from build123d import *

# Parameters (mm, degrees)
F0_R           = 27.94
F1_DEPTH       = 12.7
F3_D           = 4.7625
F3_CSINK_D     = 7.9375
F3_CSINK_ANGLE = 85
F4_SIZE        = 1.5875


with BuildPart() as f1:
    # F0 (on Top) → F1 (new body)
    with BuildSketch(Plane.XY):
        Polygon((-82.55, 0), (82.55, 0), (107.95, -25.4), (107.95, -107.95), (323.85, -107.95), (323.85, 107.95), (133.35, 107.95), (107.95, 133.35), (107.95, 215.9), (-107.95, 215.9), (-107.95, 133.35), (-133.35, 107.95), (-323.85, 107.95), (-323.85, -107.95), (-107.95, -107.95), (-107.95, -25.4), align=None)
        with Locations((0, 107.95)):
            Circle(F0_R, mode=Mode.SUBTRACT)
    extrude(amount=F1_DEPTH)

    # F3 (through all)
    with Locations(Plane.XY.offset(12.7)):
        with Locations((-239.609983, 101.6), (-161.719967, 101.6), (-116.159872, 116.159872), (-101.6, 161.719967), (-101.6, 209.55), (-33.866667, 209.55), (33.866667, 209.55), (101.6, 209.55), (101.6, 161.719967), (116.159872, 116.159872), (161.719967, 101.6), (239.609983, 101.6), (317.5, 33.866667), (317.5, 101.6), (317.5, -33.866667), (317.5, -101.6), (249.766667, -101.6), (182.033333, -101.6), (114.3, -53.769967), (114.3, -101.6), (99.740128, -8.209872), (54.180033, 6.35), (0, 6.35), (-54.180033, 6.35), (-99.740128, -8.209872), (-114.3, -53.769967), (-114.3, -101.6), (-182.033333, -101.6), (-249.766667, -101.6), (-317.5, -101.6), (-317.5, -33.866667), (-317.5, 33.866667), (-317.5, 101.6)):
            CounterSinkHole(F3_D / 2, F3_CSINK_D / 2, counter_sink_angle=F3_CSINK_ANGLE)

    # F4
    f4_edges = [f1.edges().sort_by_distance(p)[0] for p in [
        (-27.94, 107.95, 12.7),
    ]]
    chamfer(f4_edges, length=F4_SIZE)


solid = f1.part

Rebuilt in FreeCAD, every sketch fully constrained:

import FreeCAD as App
import Part
import Sketcher
Q = App.Units.Quantity


def edges_at(feature, points):
    """Names of the edges that pass closest to the given points."""
    edges = feature.Shape.Edges
    near = lambda p: min(range(len(edges)), key=lambda i: edges[i].distToShape(Part.Vertex(*p))[0])
    return sorted({f"Edge{near(p) + 1}" for p in points})

doc = App.newDocument("Part")
params = doc.addObject("Spreadsheet::Sheet", "Params")
for row, (alias, value) in enumerate([
    ("sketch1_diameter", "2.2 in"),
    ("sketch1_width", "6.5 in"),
    ("sketch1_width2", "8.5 in"),
    ("pad1_length", "0.5 in"),
    ("sketch2_diameter", "0.1875 in"),
    ("hole_diameter", "0.1875 in"),
    ("hole_csink_diameter", "0.3125 in"),
    ("chamfer_size", "0.0625 in"),
], start=1):
    params.set(f"A{row}", alias)
    params.set(f"B{row}", "=" + value)
    params.setAlias(f"B{row}", alias)

body = doc.addObject("PartDesign::Body", "Body")

# Sketch on XY plane
sketch1 = body.newObject("Sketcher::SketchObject", "Sketch")
sketch1.AttachmentSupport = (doc.getObject("XY_Plane"), [""])
sketch1.MapMode = "FlatFace"
sketch1.addGeometry([
    Part.LineSegment(App.Vector(-83, 0, 0), App.Vector(83, 0, 0)),  # 0
    Part.LineSegment(App.Vector(83, 0, 0), App.Vector(108, -25, 0)),  # 1
    Part.LineSegment(App.Vector(108, -25, 0), App.Vector(108, -108, 0)),  # 2
    Part.LineSegment(App.Vector(108, -108, 0), App.Vector(324, -108, 0)),  # 3
    Part.LineSegment(App.Vector(324, -108, 0), App.Vector(324, 108, 0)),  # 4
    Part.LineSegment(App.Vector(324, 108, 0), App.Vector(133, 108, 0)),  # 5
    Part.LineSegment(App.Vector(133, 108, 0), App.Vector(108, 133, 0)),  # 6
    Part.LineSegment(App.Vector(108, 133, 0), App.Vector(108, 216, 0)),  # 7
    Part.LineSegment(App.Vector(108, 216, 0), App.Vector(-108, 216, 0)),  # 8
    Part.LineSegment(App.Vector(-108, 216, 0), App.Vector(-108, 133, 0)),  # 9
    Part.LineSegment(App.Vector(-108, 133, 0), App.Vector(-133, 108, 0)),  # 10
    Part.LineSegment(App.Vector(-133, 108, 0), App.Vector(-324, 108, 0)),  # 11
    Part.LineSegment(App.Vector(-324, 108, 0), App.Vector(-324, -108, 0)),  # 12
    Part.LineSegment(App.Vector(-324, -108, 0), App.Vector(-108, -108, 0)),  # 13
    Part.LineSegment(App.Vector(-108, -108, 0), App.Vector(-108, -25, 0)),  # 14
    Part.LineSegment(App.Vector(-108, -25, 0), App.Vector(-83, 0, 0)),  # 15
    Part.Circle(App.Vector(0, 108, 0), App.Vector(0, 0, 1), 28),  # 16
], False)
sketch1.addConstraint([
    Sketcher.Constraint("Coincident", 0, 2, 1, 1),
    Sketcher.Constraint("Coincident", 1, 2, 2, 1),
    Sketcher.Constraint("Coincident", 2, 2, 3, 1),
    Sketcher.Constraint("Coincident", 3, 2, 4, 1),
    Sketcher.Constraint("Coincident", 4, 2, 5, 1),
    Sketcher.Constraint("Coincident", 5, 2, 6, 1),
    Sketcher.Constraint("Coincident", 6, 2, 7, 1),
    Sketcher.Constraint("Coincident", 7, 2, 8, 1),
    Sketcher.Constraint("Coincident", 8, 2, 9, 1),
    Sketcher.Constraint("Coincident", 9, 2, 10, 1),
    Sketcher.Constraint("Coincident", 10, 2, 11, 1),
    Sketcher.Constraint("Coincident", 11, 2, 12, 1),
    Sketcher.Constraint("Coincident", 12, 2, 13, 1),
    Sketcher.Constraint("Coincident", 13, 2, 14, 1),
    Sketcher.Constraint("Coincident", 14, 2, 15, 1),
    Sketcher.Constraint("Coincident", 15, 2, 0, 1),
    Sketcher.Constraint("Horizontal", 0),
    Sketcher.Constraint("Vertical", 2),
    Sketcher.Constraint("Horizontal", 3),
    Sketcher.Constraint("Vertical", 4),
    Sketcher.Constraint("Horizontal", 5),
    Sketcher.Constraint("Vertical", 7),
    Sketcher.Constraint("Horizontal", 8),
    Sketcher.Constraint("Vertical", 9),
    Sketcher.Constraint("Horizontal", 11),
    Sketcher.Constraint("Vertical", 12),
    Sketcher.Constraint("Horizontal", 13),
    Sketcher.Constraint("Vertical", 14),
    Sketcher.Constraint("Symmetric", 3, 2, 11, 2, -1, 1),
    Sketcher.Constraint("Symmetric", 0, 2, 15, 2, -1, 1),
    Sketcher.Constraint("Symmetric", 6, 2, 9, 2, -2),
    Sketcher.Constraint("Symmetric", 5, 2, 10, 2, -2),
    Sketcher.Constraint("Symmetric", 2, 2, 13, 2, -2),
    Sketcher.Constraint("PointOnObject", 16, 3, -2),
    Sketcher.Constraint("Parallel", 1, 6),
    Sketcher.Constraint("Perpendicular", 6, 10),
    Sketcher.Constraint("Parallel", 10, 15),
    Sketcher.Constraint("Horizontal", 16, 3, 4, 2),
    Sketcher.Constraint("Vertical", 2, 2, 6, 2),
    Sketcher.Constraint("Equal", 3, 8),
    Sketcher.Constraint("Equal", 13, 4),
    Sketcher.Constraint("Equal", 2, 7),
    Sketcher.Constraint("Equal", 1, 6),
    Sketcher.Constraint("Diameter", 16, Q("2.2 in")),
    Sketcher.Constraint("DistanceX", 0, 1, 0, 2, Q("6.5 in")),
    Sketcher.Constraint("DistanceX", 3, 1, 3, 2, Q("8.5 in")),
])
sketch1.setExpression("Constraints[43]", "Params.sketch1_diameter")
sketch1.setExpression("Constraints[44]", "Params.sketch1_width")
sketch1.setExpression("Constraints[45]", "Params.sketch1_width2")
pad1 = body.newObject("PartDesign::Pad", "Pad")
pad1.Profile = sketch1
pad1.setExpression("Length", "Params.pad1_length")

# Sketch on XY plane
sketch2 = body.newObject("Sketcher::SketchObject", "Sketch001")
sketch2.AttachmentSupport = (doc.getObject("XY_Plane"), [""])
sketch2.MapMode = "FlatFace"
sketch2.AttachmentOffset = App.Placement(App.Vector(0, 0, 0.5 * 25.4), App.Rotation())
sketch2.addGeometry([
    Part.Circle(App.Vector(-239.6, 101.6, 0), App.Vector(0, 0, 1), 2.4),  # 0
    Part.Circle(App.Vector(-161.7, 101.6, 0), App.Vector(0, 0, 1), 2.4),  # 1
    Part.Circle(App.Vector(-116.2, 116.2, 0), App.Vector(0, 0, 1), 2.4),  # 2
    Part.Circle(App.Vector(-101.6, 161.7, 0), App.Vector(0, 0, 1), 2.4),  # 3
    Part.Circle(App.Vector(-101.6, 209.6, 0), App.Vector(0, 0, 1), 2.4),  # 4
    Part.Circle(App.Vector(-33.9, 209.6, 0), App.Vector(0, 0, 1), 2.4),  # 5
    Part.Circle(App.Vector(33.9, 209.6, 0), App.Vector(0, 0, 1), 2.4),  # 6
    Part.Circle(App.Vector(101.6, 209.6, 0), App.Vector(0, 0, 1), 2.4),  # 7
    Part.Circle(App.Vector(101.6, 161.7, 0), App.Vector(0, 0, 1), 2.4),  # 8
    Part.Circle(App.Vector(116.2, 116.2, 0), App.Vector(0, 0, 1), 2.4),  # 9
    Part.Circle(App.Vector(161.7, 101.6, 0), App.Vector(0, 0, 1), 2.4),  # 10
    Part.Circle(App.Vector(239.6, 101.6, 0), App.Vector(0, 0, 1), 2.4),  # 11
    Part.Circle(App.Vector(317.5, 33.9, 0), App.Vector(0, 0, 1), 2.4),  # 12
    Part.Circle(App.Vector(317.5, 101.6, 0), App.Vector(0, 0, 1), 2.4),  # 13
    Part.Circle(App.Vector(317.5, -33.9, 0), App.Vector(0, 0, 1), 2.4),  # 14
    Part.Circle(App.Vector(317.5, -101.6, 0), App.Vector(0, 0, 1), 2.4),  # 15
    Part.Circle(App.Vector(249.8, -101.6, 0), App.Vector(0, 0, 1), 2.4),  # 16
    Part.Circle(App.Vector(182, -101.6, 0), App.Vector(0, 0, 1), 2.4),  # 17
    Part.Circle(App.Vector(114.3, -53.8, 0), App.Vector(0, 0, 1), 2.4),  # 18
    Part.Circle(App.Vector(114.3, -101.6, 0), App.Vector(0, 0, 1), 2.4),  # 19
    Part.Circle(App.Vector(99.7, -8.2, 0), App.Vector(0, 0, 1), 2.4),  # 20
    Part.Circle(App.Vector(54.2, 6.3, 0), App.Vector(0, 0, 1), 2.4),  # 21
    Part.Circle(App.Vector(0, 6.3, 0), App.Vector(0, 0, 1), 2.4),  # 22
    Part.Circle(App.Vector(-54.2, 6.3, 0), App.Vector(0, 0, 1), 2.4),  # 23
    Part.Circle(App.Vector(-99.7, -8.2, 0), App.Vector(0, 0, 1), 2.4),  # 24
    Part.Circle(App.Vector(-114.3, -53.8, 0), App.Vector(0, 0, 1), 2.4),  # 25
    Part.Circle(App.Vector(-114.3, -101.6, 0), App.Vector(0, 0, 1), 2.4),  # 26
    Part.Circle(App.Vector(-182, -101.6, 0), App.Vector(0, 0, 1), 2.4),  # 27
    Part.Circle(App.Vector(-249.8, -101.6, 0), App.Vector(0, 0, 1), 2.4),  # 28
    Part.Circle(App.Vector(-317.5, -101.6, 0), App.Vector(0, 0, 1), 2.4),  # 29
    Part.Circle(App.Vector(-317.5, -33.9, 0), App.Vector(0, 0, 1), 2.4),  # 30
    Part.Circle(App.Vector(-317.5, 33.9, 0), App.Vector(0, 0, 1), 2.4),  # 31
    Part.Circle(App.Vector(-317.5, 101.6, 0), App.Vector(0, 0, 1), 2.4),  # 32
], False)
sketch2.addConstraint([
    Sketcher.Constraint("Equal", 0, 1),
    Sketcher.Constraint("Equal", 1, 2),
    Sketcher.Constraint("Equal", 2, 3),
    Sketcher.Constraint("Equal", 3, 4),
    Sketcher.Constraint("Equal", 4, 5),
    Sketcher.Constraint("Equal", 5, 6),
    Sketcher.Constraint("Equal", 6, 7),
    Sketcher.Constraint("Equal", 7, 8),
    Sketcher.Constraint("Equal", 8, 9),
    Sketcher.Constraint("Equal", 9, 10),
    Sketcher.Constraint("Equal", 10, 11),
    Sketcher.Constraint("Equal", 11, 12),
    Sketcher.Constraint("Equal", 12, 13),
    Sketcher.Constraint("Equal", 13, 14),
    Sketcher.Constraint("Equal", 14, 15),
    Sketcher.Constraint("Equal", 15, 16),
    Sketcher.Constraint("Equal", 16, 17),
    Sketcher.Constraint("Equal", 17, 18),
    Sketcher.Constraint("Equal", 18, 19),
    Sketcher.Constraint("Equal", 19, 20),
    Sketcher.Constraint("Equal", 20, 21),
    Sketcher.Constraint("Equal", 21, 22),
    Sketcher.Constraint("Equal", 22, 23),
    Sketcher.Constraint("Equal", 23, 24),
    Sketcher.Constraint("Equal", 24, 25),
    Sketcher.Constraint("Equal", 25, 26),
    Sketcher.Constraint("Equal", 26, 27),
    Sketcher.Constraint("Equal", 27, 28),
    Sketcher.Constraint("Equal", 28, 29),
    Sketcher.Constraint("Equal", 29, 30),
    Sketcher.Constraint("Equal", 30, 31),
    Sketcher.Constraint("Equal", 31, 32),
    Sketcher.Constraint("Symmetric", 13, 3, 29, 3, -1, 1),
    Sketcher.Constraint("Symmetric", 12, 3, 30, 3, -1, 1),
    Sketcher.Constraint("Symmetric", 14, 3, 31, 3, -1, 1),
    Sketcher.Constraint("Symmetric", 15, 3, 32, 3, -1, 1),
    Sketcher.Constraint("Symmetric", 5, 3, 6, 3, -2),
    Sketcher.Constraint("Symmetric", 4, 3, 7, 3, -2),
    Sketcher.Constraint("Symmetric", 3, 3, 8, 3, -2),
    Sketcher.Constraint("Symmetric", 2, 3, 9, 3, -2),
    Sketcher.Constraint("Symmetric", 1, 3, 10, 3, -2),
    Sketcher.Constraint("Symmetric", 0, 3, 11, 3, -2),
    Sketcher.Constraint("Symmetric", 21, 3, 23, 3, -2),
    Sketcher.Constraint("Symmetric", 20, 3, 24, 3, -2),
    Sketcher.Constraint("Symmetric", 18, 3, 25, 3, -2),
    Sketcher.Constraint("Symmetric", 19, 3, 26, 3, -2),
    Sketcher.Constraint("Symmetric", 17, 3, 27, 3, -2),
    Sketcher.Constraint("Symmetric", 16, 3, 28, 3, -2),
    Sketcher.Constraint("Symmetric", 15, 3, 29, 3, -2),
    Sketcher.Constraint("Symmetric", 14, 3, 30, 3, -2),
    Sketcher.Constraint("PointOnObject", 22, 3, -2),
    Sketcher.Constraint("Horizontal", 0, 3, 1, 3),
    Sketcher.Constraint("Horizontal", 4, 3, 5, 3),
    Sketcher.Constraint("Horizontal", 11, 3, 13, 3),
    Sketcher.Constraint("Horizontal", 15, 3, 16, 3),
    Sketcher.Constraint("Horizontal", 16, 3, 17, 3),
    Sketcher.Constraint("Horizontal", 17, 3, 19, 3),
    Sketcher.Constraint("Horizontal", 21, 3, 22, 3),
    Sketcher.Constraint("Vertical", 3, 3, 4, 3),
    Sketcher.Constraint("Vertical", 12, 3, 13, 3),
    Sketcher.Constraint("Vertical", 18, 3, 19, 3),
    Sketcher.Constraint("Diameter", 0, Q("0.1875 in")),
    Sketcher.Constraint("DistanceY", -1, 1, 0, 3, Q("4 in")),
    Sketcher.Constraint("DistanceX", 3, 3, -1, 1, Q("4 in")),
    Sketcher.Constraint("DistanceX", 19, 3, 15, 3, Q("8 in")),
    Sketcher.Constraint("DistanceX", -1, 1, 12, 3, Q("12.5 in")),
    Sketcher.Constraint("DistanceY", -1, 1, 4, 3, Q("8.25 in")),
    Sketcher.Constraint("DistanceY", -1, 1, 21, 3, Q("0.25 in")),
    Sketcher.Constraint("DistanceX", 1, 3, 5, 3, Q("127.8533 mm")),
    Sketcher.Constraint("DistanceY", 12, 3, 8, 3, Q("127.8533 mm")),
    Sketcher.Constraint("DistanceX", 27, 3, 23, 3, Q("127.8533 mm")),
    Sketcher.Constraint("DistanceY", 25, 3, 30, 3, Q("19.9033 mm")),
    Sketcher.Constraint("DistanceX", 2, 3, -1, 1, Q("116.159872 mm")),
    Sketcher.Constraint("DistanceY", -1, 1, 2, 3, Q("116.159872 mm")),
    Sketcher.Constraint("DistanceX", -1, 1, 20, 3, Q("99.740128 mm")),
    Sketcher.Constraint("DistanceX", 0, 3, 2, 3, Q("123.450111 mm")),
    Sketcher.Constraint("DistanceX", 2, 3, 6, 3, Q("150.026539 mm")),
    Sketcher.Constraint("DistanceY", 14, 3, 9, 3, Q("150.026539 mm")),
    Sketcher.Constraint("DistanceY", 20, 3, 10, 3, Q("109.809872 mm")),
    Sketcher.Constraint("DistanceX", 21, 3, 9, 3, Q("61.979839 mm")),
    Sketcher.Constraint("DistanceX", 28, 3, 24, 3, Q("150.026539 mm")),
])
sketch2.setExpression("Constraints[61]", "Params.sketch2_diameter")
doc.recompute()
hole = body.newObject("PartDesign::Hole", "Hole")
hole.Profile = sketch2
hole.ThreadType = "None"
hole.setExpression("Diameter", "Params.hole_diameter")
hole.DepthType = "ThroughAll"
hole.HoleCutType = "Countersink"
hole.setExpression("HoleCutDiameter", "Params.hole_csink_diameter")
hole.HoleCutCountersinkAngle = 85
doc.recompute()

chamfer = body.newObject("PartDesign::Chamfer", "Chamfer")
chamfer.Base = (hole, edges_at(hole, [(-27.94, 107.95, 12.7)]))
chamfer.setExpression("Size", "Params.chamfer_size")

doc.recompute()
